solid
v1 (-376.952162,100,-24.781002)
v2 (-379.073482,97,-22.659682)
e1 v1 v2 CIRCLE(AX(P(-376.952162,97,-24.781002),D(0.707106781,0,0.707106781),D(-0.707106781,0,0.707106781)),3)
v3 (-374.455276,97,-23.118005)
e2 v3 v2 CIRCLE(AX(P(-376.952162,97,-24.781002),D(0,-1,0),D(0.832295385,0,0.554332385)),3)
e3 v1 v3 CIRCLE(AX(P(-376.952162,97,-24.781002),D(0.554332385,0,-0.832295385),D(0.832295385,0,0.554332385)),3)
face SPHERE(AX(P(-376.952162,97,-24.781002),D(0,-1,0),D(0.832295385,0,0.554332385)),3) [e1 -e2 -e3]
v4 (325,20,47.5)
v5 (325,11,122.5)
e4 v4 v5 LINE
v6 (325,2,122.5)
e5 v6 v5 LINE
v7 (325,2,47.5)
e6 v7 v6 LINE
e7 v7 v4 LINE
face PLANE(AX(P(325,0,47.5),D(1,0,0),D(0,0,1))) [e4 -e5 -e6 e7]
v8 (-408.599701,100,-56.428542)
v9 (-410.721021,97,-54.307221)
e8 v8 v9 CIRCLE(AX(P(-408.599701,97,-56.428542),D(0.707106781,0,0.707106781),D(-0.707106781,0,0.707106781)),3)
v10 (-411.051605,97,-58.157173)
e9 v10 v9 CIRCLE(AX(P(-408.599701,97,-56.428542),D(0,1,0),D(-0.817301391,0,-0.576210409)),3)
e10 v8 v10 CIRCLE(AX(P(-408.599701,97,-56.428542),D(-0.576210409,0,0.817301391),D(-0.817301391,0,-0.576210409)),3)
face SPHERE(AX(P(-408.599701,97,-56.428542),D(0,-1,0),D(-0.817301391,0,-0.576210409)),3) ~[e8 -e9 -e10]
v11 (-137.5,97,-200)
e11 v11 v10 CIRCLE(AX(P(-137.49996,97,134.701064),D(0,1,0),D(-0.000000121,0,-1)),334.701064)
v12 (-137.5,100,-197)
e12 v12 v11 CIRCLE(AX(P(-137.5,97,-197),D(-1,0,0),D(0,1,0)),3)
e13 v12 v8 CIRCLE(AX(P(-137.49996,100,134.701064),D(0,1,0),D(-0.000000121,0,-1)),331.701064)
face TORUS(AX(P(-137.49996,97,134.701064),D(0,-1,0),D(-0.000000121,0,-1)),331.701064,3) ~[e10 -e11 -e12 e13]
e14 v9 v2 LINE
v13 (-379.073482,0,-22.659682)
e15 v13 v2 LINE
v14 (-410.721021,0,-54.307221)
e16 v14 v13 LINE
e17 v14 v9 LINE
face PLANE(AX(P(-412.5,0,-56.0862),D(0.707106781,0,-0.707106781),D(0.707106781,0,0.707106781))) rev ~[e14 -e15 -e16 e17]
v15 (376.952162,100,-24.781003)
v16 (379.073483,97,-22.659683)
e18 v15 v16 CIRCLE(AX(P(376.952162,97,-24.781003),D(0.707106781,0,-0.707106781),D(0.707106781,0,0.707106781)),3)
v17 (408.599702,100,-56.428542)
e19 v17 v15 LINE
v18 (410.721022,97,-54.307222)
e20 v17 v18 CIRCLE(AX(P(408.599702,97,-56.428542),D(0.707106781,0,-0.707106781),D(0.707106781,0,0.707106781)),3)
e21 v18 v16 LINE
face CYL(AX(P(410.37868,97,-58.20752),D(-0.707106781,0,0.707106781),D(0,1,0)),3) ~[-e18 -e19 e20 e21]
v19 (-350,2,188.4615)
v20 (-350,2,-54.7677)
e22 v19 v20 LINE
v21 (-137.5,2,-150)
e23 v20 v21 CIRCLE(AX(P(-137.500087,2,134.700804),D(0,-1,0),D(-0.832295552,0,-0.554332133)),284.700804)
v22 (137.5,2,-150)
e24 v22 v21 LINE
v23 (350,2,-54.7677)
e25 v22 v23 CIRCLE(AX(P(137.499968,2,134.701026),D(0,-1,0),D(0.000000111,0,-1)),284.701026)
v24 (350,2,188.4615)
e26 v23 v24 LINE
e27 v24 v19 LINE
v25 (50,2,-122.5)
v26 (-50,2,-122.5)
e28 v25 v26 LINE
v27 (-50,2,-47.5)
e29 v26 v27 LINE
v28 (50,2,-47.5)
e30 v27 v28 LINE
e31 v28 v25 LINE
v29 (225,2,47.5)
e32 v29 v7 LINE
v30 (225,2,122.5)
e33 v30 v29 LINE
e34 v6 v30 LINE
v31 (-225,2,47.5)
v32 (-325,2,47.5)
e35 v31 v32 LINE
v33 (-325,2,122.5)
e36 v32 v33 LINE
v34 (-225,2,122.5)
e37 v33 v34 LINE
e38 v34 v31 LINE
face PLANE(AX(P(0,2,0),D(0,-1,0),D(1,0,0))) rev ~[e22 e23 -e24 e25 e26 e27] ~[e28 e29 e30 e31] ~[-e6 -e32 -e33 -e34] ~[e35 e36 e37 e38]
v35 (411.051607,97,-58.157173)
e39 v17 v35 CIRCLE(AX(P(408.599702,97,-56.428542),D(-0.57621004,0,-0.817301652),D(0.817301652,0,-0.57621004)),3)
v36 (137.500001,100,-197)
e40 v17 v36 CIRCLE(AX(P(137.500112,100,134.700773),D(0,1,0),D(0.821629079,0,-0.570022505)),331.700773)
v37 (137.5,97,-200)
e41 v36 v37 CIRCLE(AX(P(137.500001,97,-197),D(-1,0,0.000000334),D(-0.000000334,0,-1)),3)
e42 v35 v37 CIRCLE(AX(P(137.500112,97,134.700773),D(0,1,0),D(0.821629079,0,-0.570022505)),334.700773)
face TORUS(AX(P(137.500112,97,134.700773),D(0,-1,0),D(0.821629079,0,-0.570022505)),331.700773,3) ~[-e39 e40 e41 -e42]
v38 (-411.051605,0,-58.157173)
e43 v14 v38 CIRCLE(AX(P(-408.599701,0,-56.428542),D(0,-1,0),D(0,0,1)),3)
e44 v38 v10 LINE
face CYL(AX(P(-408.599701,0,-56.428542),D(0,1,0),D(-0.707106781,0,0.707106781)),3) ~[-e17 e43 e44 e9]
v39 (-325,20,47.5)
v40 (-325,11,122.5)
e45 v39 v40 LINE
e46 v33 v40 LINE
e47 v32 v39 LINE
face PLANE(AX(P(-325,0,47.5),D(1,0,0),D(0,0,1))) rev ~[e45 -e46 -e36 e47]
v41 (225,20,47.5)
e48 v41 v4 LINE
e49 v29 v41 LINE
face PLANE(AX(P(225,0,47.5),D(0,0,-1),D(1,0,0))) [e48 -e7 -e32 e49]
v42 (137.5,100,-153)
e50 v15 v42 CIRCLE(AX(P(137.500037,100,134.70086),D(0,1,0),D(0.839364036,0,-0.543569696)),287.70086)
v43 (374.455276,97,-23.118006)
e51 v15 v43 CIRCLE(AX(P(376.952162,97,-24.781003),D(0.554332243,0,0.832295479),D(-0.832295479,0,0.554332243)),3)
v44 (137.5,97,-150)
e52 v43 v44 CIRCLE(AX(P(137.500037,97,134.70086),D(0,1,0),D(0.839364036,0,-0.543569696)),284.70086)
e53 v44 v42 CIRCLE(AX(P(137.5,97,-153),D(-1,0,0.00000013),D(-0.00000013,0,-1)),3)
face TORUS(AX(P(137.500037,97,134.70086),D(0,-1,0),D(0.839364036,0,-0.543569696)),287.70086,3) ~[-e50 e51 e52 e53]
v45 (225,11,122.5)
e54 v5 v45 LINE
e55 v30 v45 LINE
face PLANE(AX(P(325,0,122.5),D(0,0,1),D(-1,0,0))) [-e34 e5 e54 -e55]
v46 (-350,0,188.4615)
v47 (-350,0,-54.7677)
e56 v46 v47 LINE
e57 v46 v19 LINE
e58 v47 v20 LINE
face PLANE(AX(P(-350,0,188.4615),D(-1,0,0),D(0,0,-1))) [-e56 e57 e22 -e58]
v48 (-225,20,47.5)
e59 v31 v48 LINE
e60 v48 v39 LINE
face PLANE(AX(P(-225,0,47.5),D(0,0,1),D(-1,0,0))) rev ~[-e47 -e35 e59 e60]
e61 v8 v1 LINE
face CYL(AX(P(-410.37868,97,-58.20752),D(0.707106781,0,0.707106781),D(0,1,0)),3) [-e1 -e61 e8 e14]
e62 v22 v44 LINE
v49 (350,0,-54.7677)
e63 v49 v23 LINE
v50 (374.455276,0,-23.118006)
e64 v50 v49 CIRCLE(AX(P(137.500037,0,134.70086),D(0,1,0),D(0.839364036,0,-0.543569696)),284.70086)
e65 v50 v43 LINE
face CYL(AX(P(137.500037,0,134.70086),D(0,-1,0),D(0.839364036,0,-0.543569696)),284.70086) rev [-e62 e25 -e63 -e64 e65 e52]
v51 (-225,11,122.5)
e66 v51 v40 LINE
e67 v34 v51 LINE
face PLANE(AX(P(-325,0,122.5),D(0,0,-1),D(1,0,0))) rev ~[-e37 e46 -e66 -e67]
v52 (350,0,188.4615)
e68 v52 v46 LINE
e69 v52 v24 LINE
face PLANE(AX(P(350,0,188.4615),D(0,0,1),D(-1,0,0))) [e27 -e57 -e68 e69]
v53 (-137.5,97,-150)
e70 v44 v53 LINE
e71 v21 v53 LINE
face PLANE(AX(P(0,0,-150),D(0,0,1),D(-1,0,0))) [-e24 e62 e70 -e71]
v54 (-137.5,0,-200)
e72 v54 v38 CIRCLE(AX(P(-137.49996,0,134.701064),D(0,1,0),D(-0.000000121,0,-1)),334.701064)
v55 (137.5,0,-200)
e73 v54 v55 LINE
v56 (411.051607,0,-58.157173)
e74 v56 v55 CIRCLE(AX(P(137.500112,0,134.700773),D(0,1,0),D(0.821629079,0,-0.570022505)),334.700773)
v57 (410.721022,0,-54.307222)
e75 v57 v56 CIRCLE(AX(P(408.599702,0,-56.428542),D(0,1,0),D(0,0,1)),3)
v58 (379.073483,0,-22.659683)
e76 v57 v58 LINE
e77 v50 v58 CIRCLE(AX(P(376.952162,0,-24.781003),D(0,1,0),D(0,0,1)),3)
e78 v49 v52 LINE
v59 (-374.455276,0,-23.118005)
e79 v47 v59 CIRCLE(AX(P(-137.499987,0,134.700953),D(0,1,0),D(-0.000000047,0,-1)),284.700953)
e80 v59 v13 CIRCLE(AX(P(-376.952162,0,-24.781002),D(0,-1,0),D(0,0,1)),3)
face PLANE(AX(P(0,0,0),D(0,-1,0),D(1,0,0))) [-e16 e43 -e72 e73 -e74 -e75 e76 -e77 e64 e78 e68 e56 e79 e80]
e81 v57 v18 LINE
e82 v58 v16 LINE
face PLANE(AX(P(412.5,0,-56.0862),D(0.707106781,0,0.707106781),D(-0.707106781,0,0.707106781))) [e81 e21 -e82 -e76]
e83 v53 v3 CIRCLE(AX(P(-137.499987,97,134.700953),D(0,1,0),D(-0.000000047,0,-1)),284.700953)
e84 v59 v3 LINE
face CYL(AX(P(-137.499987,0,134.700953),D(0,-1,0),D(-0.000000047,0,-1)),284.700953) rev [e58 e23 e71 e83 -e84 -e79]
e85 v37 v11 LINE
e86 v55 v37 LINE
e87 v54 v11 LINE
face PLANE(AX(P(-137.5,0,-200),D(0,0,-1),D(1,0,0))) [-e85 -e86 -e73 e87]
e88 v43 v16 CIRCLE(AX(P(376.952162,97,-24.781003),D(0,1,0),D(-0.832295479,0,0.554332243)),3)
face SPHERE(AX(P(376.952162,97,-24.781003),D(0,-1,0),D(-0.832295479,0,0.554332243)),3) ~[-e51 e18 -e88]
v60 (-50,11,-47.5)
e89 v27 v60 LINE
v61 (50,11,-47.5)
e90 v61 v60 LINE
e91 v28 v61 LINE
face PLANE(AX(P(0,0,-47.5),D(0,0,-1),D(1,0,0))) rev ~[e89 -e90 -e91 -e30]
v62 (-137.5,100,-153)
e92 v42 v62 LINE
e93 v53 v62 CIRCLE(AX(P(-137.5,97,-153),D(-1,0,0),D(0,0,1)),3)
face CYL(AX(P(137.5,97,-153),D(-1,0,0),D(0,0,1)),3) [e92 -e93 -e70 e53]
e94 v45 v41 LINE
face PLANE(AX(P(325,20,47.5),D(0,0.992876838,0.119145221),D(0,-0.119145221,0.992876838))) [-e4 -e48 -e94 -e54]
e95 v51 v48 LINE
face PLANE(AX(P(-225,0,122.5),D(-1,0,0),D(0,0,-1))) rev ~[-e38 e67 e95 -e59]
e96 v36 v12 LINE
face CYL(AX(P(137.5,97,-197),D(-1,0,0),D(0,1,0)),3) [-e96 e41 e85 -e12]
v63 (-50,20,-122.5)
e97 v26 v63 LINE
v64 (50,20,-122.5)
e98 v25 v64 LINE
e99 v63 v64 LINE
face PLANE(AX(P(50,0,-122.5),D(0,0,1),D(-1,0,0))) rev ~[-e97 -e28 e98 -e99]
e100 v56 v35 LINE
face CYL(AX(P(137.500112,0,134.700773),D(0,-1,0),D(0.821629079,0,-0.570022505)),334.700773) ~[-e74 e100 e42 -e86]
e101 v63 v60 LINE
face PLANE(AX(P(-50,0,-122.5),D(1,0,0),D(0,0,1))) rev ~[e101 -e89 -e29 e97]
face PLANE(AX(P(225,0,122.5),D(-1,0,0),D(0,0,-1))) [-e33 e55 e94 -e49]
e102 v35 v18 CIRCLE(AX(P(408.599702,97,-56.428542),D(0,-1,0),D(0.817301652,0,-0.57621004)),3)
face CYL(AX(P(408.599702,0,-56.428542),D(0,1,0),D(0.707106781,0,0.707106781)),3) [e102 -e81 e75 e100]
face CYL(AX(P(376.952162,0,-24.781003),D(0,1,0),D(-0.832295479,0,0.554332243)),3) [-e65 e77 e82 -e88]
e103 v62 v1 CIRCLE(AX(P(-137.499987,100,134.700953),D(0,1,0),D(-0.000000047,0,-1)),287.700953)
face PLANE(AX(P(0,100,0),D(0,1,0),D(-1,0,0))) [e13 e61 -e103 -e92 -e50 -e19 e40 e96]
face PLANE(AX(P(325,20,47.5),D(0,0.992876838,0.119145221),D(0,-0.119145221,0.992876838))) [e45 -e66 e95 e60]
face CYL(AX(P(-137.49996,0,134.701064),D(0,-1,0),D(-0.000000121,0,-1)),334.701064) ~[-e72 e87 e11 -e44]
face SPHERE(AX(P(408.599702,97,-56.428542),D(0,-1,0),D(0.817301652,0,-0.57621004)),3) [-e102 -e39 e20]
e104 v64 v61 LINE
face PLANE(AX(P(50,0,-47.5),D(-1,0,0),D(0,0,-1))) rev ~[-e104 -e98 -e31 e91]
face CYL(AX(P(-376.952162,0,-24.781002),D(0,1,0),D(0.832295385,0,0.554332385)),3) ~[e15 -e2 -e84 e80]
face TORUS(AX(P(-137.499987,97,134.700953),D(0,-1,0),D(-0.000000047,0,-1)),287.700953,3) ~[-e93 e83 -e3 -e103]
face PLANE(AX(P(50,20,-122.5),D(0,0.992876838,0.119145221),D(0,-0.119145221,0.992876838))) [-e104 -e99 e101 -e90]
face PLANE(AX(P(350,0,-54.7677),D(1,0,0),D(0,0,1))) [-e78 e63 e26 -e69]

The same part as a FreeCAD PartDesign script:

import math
import FreeCAD as App
import Part
import Sketcher


def edges_at(feature, points):
    """Names of the edges that pass closest to the given points."""
    edges = feature.Shape.Edges
    near = lambda p: min(range(len(edges)), key=lambda i: edges[i].distToShape(Part.Vertex(*p))[0])
    return sorted({f"Edge{near(p) + 1}" for p in points})

doc = App.newDocument("Part")
body = doc.addObject("PartDesign::Body", "Body")

sketch1 = doc.addObject("Sketcher::SketchObject", "Sketch")
body.addObject(sketch1)
sketch1.AttachmentSupport = (doc.XZ_Plane, [""])
sketch1.MapMode = "FlatFace"
sketch1.addGeometry(Part.LineSegment(App.Vector(-138, -150, 0), App.Vector(138, -150, 0)), False)
sketch1.addGeometry(Part.ArcOfCircle(Part.Circle(App.Vector(138, 135, 0), App.Vector(0, 0, 1), 285), math.radians(-90), math.radians(-33)), False)
sketch1.addGeometry(Part.LineSegment(App.Vector(376, -20, 0), App.Vector(412, -56, 0)), False)
sketch1.addGeometry(Part.ArcOfCircle(Part.Circle(App.Vector(138, 135, 0), App.Vector(0, 0, 1), 335), math.radians(-90), math.radians(-35)), False)
sketch1.addGeometry(Part.LineSegment(App.Vector(138, -200, 0), App.Vector(-138, -200, 0)), False)
sketch1.addGeometry(Part.ArcOfCircle(Part.Circle(App.Vector(-138, 135, 0), App.Vector(0, 0, 1), 335), math.radians(-145), math.radians(-90)), False)
sketch1.addGeometry(Part.LineSegment(App.Vector(-412, -56, 0), App.Vector(-376, -20, 0)), False)
sketch1.addGeometry(Part.ArcOfCircle(Part.Circle(App.Vector(-138, 135, 0), App.Vector(0, 0, 1), 285), math.radians(-147), math.radians(-90)), False)
sketch1.addConstraint(Sketcher.Constraint("Tangent", 0, 2, 1, 1))
sketch1.addConstraint(Sketcher.Constraint("Coincident", 1, 2, 2, 1))
sketch1.addConstraint(Sketcher.Constraint("Coincident", 2, 2, 3, 2))
sketch1.addConstraint(Sketcher.Constraint("Tangent", 3, 1, 4, 1))
sketch1.addConstraint(Sketcher.Constraint("Tangent", 4, 2, 5, 2))
sketch1.addConstraint(Sketcher.Constraint("Coincident", 5, 1, 6, 1))
sketch1.addConstraint(Sketcher.Constraint("Coincident", 6, 2, 7, 1))
sketch1.addConstraint(Sketcher.Constraint("Tangent", 7, 2, 0, 1))
sketch1.addConstraint(Sketcher.Constraint("Horizontal", 0))
sketch1.addConstraint(Sketcher.Constraint("Horizontal", 4))
sketch1.addConstraint(Sketcher.Constraint("Coincident", 3, 3, 1, 3))
sketch1.addConstraint(Sketcher.Constraint("Coincident", 7, 3, 5, 3))
sketch1.addConstraint(Sketcher.Constraint("Equal", 3, 5))
sketch1.addConstraint(Sketcher.Constraint("Symmetric", 2, 2, 5, 1, -2))
sketch1.addConstraint(Sketcher.Constraint("Perpendicular", 2, 6))
sketch1.addConstraint(Sketcher.Constraint("Horizontal", 1, 2, 6, 2))
sketch1.addConstraint(Sketcher.Constraint("DistanceX", 0, 1, 0, 2, 275.0))
sketch1.addConstraint(Sketcher.Constraint("DistanceX", 0, 2, 2, 2, 275.0))
sketch1.addConstraint(Sketcher.Constraint("DistanceY", 3, 1, 0, 2, 50.0))
sketch1.addConstraint(Sketcher.Constraint("DistanceY", 0, 2, -1, 1, 150.0))
sketch1.addConstraint(Sketcher.Constraint("Radius", 1, 284.701))
pad1 = doc.addObject("PartDesign::Pad", "Pad")
body.addObject(pad1)
pad1.Profile = sketch1
pad1.Length = 100
pad1.Reversed = True
doc.recompute()

fillet = doc.addObject("PartDesign::Fillet", "Fillet")
body.addObject(fillet)
fillet.Base = (pad1, edges_at(pad1, [
    (0, 100, -150),
    (273.507, 100, -115.412),
    (-273.507, 100, -115.412),
    (-394.484, 100, -38.07),
    (394.484, 100, -38.07),
    (-376.468, 50, -20.054),
    (-412.5, 50, -56.086),
    (376.468, 50, -20.054),
    (412.5, 50, -56.086),
    (-292.69, 100, -161.847),
    (292.69, 100, -161.847),
    (0, 100, -200),
]))
fillet.Radius = 3

sketch2 = doc.addObject("Sketcher::SketchObject", "Sketch001")
body.addObject(sketch2)
sketch2.AttachmentSupport = (doc.XZ_Plane, [""])
sketch2.MapMode = "FlatFace"
sketch2.addGeometry(Part.LineSegment(App.Vector(350, -55, 0), App.Vector(350, 188, 0)), False)
sketch2.addGeometry(Part.LineSegment(App.Vector(350, 188, 0), App.Vector(-350, 188, 0)), False)
sketch2.addGeometry(Part.LineSegment(App.Vector(-350, 188, 0), App.Vector(-350, -55, 0)), False)
sketch2.addGeometry(Part.ArcOfCircle(Part.Circle(App.Vector(-138, 135, 0), App.Vector(0, 0, 1), 285), math.radians(-138), math.radians(-90)), False)
sketch2.addGeometry(Part.LineSegment(App.Vector(-138, -150, 0), App.Vector(138, -150, 0)), False)
sketch2.addGeometry(Part.ArcOfCircle(Part.Circle(App.Vector(138, 135, 0), App.Vector(0, 0, 1), 285), math.radians(-90), math.radians(-42)), False)
sketch2.addConstraint(Sketcher.Constraint("Coincident", 0, 2, 1, 1))
sketch2.addConstraint(Sketcher.Constraint("Coincident", 1, 2, 2, 1))
sketch2.addConstraint(Sketcher.Constraint("Coincident", 2, 2, 3, 1))
sketch2.addConstraint(Sketcher.Constraint("Tangent", 3, 2, 4, 1))
sketch2.addConstraint(Sketcher.Constraint("Tangent", 4, 2, 5, 1))
sketch2.addConstraint(Sketcher.Constraint("Coincident", 5, 2, 0, 1))
sketch2.addConstraint(Sketcher.Constraint("Vertical", 0))
sketch2.addConstraint(Sketcher.Constraint("Horizontal", 1))
sketch2.addConstraint(Sketcher.Constraint("Vertical", 2))
sketch2.addConstraint(Sketcher.Constraint("Horizontal", 4))
sketch2.addConstraint(Sketcher.Constraint("Equal", 3, 5))
sketch2.addConstraint(Sketcher.Constraint("Symmetric", 2, 2, 5, 2, -2))
sketch2.addConstraint(Sketcher.Constraint("DistanceX", 1, 2, 1, 1, 700.0))
sketch2.addConstraint(Sketcher.Constraint("DistanceX", 4, 1, 4, 2, 275.0))
sketch2.addConstraint(Sketcher.Constraint("DistanceY", 3, 2, -1, 1, 150.0))
sketch2.addConstraint(Sketcher.Constraint("Radius", 3, 284.701))
sketch2.addConstraint(Sketcher.Constraint("DistanceY", 0, 1, 0, 2, 243.2292))
pad2 = doc.addObject("PartDesign::Pad", "Pad001")
body.addObject(pad2)
pad2.Profile = sketch2
pad2.Length = 2
pad2.Reversed = True

sketch3 = doc.addObject("Sketcher::SketchObject", "Sketch002")
body.addObject(sketch3)
sketch3.AttachmentSupport = (doc.XZ_Plane, [""])
sketch3.MapMode = "FlatFace"
sketch3.addGeometry(Part.LineSegment(App.Vector(50, -48, 0), App.Vector(50, -122, 0)), False)
sketch3.addGeometry(Part.LineSegment(App.Vector(50, -122, 0), App.Vector(-50, -122, 0)), False)
sketch3.addGeometry(Part.LineSegment(App.Vector(-50, -122, 0), App.Vector(-50, -48, 0)), False)
sketch3.addGeometry(Part.LineSegment(App.Vector(-50, -48, 0), App.Vector(50, -48, 0)), False)
sketch3.addGeometry(Part.LineSegment(App.Vector(225, 122, 0), App.Vector(325, 122, 0)), False)
sketch3.addGeometry(Part.LineSegment(App.Vector(325, 122, 0), App.Vector(325, 48, 0)), False)
sketch3.addGeometry(Part.LineSegment(App.Vector(325, 48, 0), App.Vector(225, 48, 0)), False)
sketch3.addGeometry(Part.LineSegment(App.Vector(225, 48, 0), App.Vector(225, 122, 0)), False)
sketch3.addGeometry(Part.LineSegment(App.Vector(-325, 48, 0), App.Vector(-325, 122, 0)), False)
sketch3.addGeometry(Part.LineSegment(App.Vector(-325, 122, 0), App.Vector(-225, 122, 0)), False)
sketch3.addGeometry(Part.LineSegment(App.Vector(-225, 122, 0), App.Vector(-225, 48, 0)), False)
sketch3.addGeometry(Part.LineSegment(App.Vector(-225, 48, 0), App.Vector(-325, 48, 0)), False)
sketch3.addConstraint(Sketcher.Constraint("Coincident", 0, 2, 1, 1))
sketch3.addConstraint(Sketcher.Constraint("Coincident", 1, 2, 2, 1))
sketch3.addConstraint(Sketcher.Constraint("Coincident", 2, 2, 3, 1))
sketch3.addConstraint(Sketcher.Constraint("Coincident", 3, 2, 0, 1))
sketch3.addConstraint(Sketcher.Constraint("Coincident", 4, 2, 5, 1))
sketch3.addConstraint(Sketcher.Constraint("Coincident", 5, 2, 6, 1))
sketch3.addConstraint(Sketcher.Constraint("Coincident", 6, 2, 7, 1))
sketch3.addConstraint(Sketcher.Constraint("Coincident", 7, 2, 4, 1))
sketch3.addConstraint(Sketcher.Constraint("Coincident", 8, 2, 9, 1))
sketch3.addConstraint(Sketcher.Constraint("Coincident", 9, 2, 10, 1))
sketch3.addConstraint(Sketcher.Constraint("Coincident", 10, 2, 11, 1))
sketch3.addConstraint(Sketcher.Constraint("Coincident", 11, 2, 8, 1))
sketch3.addConstraint(Sketcher.Constraint("Vertical", 0))
sketch3.addConstraint(Sketcher.Constraint("Horizontal", 1))
sketch3.addConstraint(Sketcher.Constraint("Vertical", 2))
sketch3.addConstraint(Sketcher.Constraint("Horizontal", 3))
sketch3.addConstraint(Sketcher.Constraint("Horizontal", 4))
sketch3.addConstraint(Sketcher.Constraint("Vertical", 5))
sketch3.addConstraint(Sketcher.Constraint("Horizontal", 6))
sketch3.addConstraint(Sketcher.Constraint("Vertical", 7))
sketch3.addConstraint(Sketcher.Constraint("Vertical", 8))
sketch3.addConstraint(Sketcher.Constraint("Horizontal", 9))
sketch3.addConstraint(Sketcher.Constraint("Vertical", 10))
sketch3.addConstraint(Sketcher.Constraint("Horizontal", 11))
sketch3.addConstraint(Sketcher.Constraint("Symmetric", 4, 2, 8, 2, -2))
sketch3.addConstraint(Sketcher.Constraint("Symmetric", 6, 2, 10, 2, -2))
sketch3.addConstraint(Sketcher.Constraint("Equal", 3, 4))
sketch3.addConstraint(Sketcher.Constraint("Equal", 2, 5))
sketch3.addConstraint(Sketcher.Constraint("DistanceX", 1, 2, 1, 1, 100.0))
sketch3.addConstraint(Sketcher.Constraint("DistanceY", 0, 2, 0, 1, 75.0))
sketch3.addConstraint(Sketcher.Constraint("DistanceX", 3, 2, 4, 2, 275.0))
sketch3.addConstraint(Sketcher.Constraint("DistanceX", 8, 2, 2, 2, 275.0))
sketch3.addConstraint(Sketcher.Constraint("DistanceY", 3, 2, 4, 2, 170.0))
sketch3.addConstraint(Sketcher.Constraint("DistanceY", 0, 2, -1, 1, 122.5))
pad3 = doc.addObject("PartDesign::Pad", "Pad002")
body.addObject(pad3)
pad3.Profile = sketch3
pad3.Length = 20
pad3.Reversed = True

sketch4 = doc.addObject("Sketcher::SketchObject", "Sketch003")
body.addObject(sketch4)
sketch4.AttachmentSupport = (doc.YZ_Plane, [""])
sketch4.MapMode = "FlatFace"
sketch4.AttachmentOffset = App.Placement(App.Vector(0, 0, 325), App.Rotation())
sketch4.addGeometry(Part.LineSegment(App.Vector(11, 122, 0), App.Vector(20, 48, 0)), False)
sketch4.addGeometry(Part.LineSegment(App.Vector(20, 48, 0), App.Vector(20, 122, 0)), False)
sketch4.addGeometry(Part.LineSegment(App.Vector(20, 122, 0), App.Vector(11, 122, 0)), False)
sketch4.addConstraint(Sketcher.Constraint("Coincident", 0, 2, 1, 1))
sketch4.addConstraint(Sketcher.Constraint("Coincident", 1, 2, 2, 1))
sketch4.addConstraint(Sketcher.Constraint("Coincident", 2, 2, 0, 1))
sketch4.addConstraint(Sketcher.Constraint("Vertical", 1))
sketch4.addConstraint(Sketcher.Constraint("Horizontal", 2))
sketch4.addConstraint(Sketcher.Constraint("DistanceX", 2, 2, 2, 1, 9.0))
sketch4.addConstraint(Sketcher.Constraint("DistanceY", 1, 1, 1, 2, 75.0))
sketch4.addConstraint(Sketcher.Constraint("DistanceX", -1, 1, 0, 2, 20.0))
sketch4.addConstraint(Sketcher.Constraint("DistanceY", -1, 1, 0, 2, 47.5))
pocket1 = doc.addObject("PartDesign::Pocket", "Pocket")
body.addObject(pocket1)
pocket1.Profile = sketch4
pocket1.Type = "ThroughAll"

sketch5 = doc.addObject("Sketcher::SketchObject", "Sketch004")
body.addObject(sketch5)
sketch5.AttachmentSupport = (doc.YZ_Plane, [""])
sketch5.MapMode = "FlatFace"
sketch5.AttachmentOffset = App.Placement(App.Vector(0, 0, 50), App.Rotation())
sketch5.addGeometry(Part.LineSegment(App.Vector(11, -48, 0), App.Vector(20, -122, 0)), False)
sketch5.addGeometry(Part.LineSegment(App.Vector(20, -122, 0), App.Vector(20, -48, 0)), False)
sketch5.addGeometry(Part.LineSegment(App.Vector(20, -48, 0), App.Vector(11, -48, 0)), False)
sketch5.addConstraint(Sketcher.Constraint("Coincident", 0, 2, 1, 1))
sketch5.addConstraint(Sketcher.Constraint("Coincident", 1, 2, 2, 1))
sketch5.addConstraint(Sketcher.Constraint("Coincident", 2, 2, 0, 1))
sketch5.addConstraint(Sketcher.Constraint("Vertical", 1))
sketch5.addConstraint(Sketcher.Constraint("Horizontal", 2))
sketch5.addConstraint(Sketcher.Constraint("DistanceX", 2, 2, 2, 1, 9.0))
sketch5.addConstraint(Sketcher.Constraint("DistanceY", 1, 1, 1, 2, 75.0))
sketch5.addConstraint(Sketcher.Constraint("DistanceX", -1, 1, 0, 2, 20.0))
sketch5.addConstraint(Sketcher.Constraint("DistanceY", 0, 2, -1, 1, 122.5))
pocket2 = doc.addObject("PartDesign::Pocket", "Pocket001")
body.addObject(pocket2)
pocket2.Profile = sketch5
pocket2.Length = 100

doc.recompute()
